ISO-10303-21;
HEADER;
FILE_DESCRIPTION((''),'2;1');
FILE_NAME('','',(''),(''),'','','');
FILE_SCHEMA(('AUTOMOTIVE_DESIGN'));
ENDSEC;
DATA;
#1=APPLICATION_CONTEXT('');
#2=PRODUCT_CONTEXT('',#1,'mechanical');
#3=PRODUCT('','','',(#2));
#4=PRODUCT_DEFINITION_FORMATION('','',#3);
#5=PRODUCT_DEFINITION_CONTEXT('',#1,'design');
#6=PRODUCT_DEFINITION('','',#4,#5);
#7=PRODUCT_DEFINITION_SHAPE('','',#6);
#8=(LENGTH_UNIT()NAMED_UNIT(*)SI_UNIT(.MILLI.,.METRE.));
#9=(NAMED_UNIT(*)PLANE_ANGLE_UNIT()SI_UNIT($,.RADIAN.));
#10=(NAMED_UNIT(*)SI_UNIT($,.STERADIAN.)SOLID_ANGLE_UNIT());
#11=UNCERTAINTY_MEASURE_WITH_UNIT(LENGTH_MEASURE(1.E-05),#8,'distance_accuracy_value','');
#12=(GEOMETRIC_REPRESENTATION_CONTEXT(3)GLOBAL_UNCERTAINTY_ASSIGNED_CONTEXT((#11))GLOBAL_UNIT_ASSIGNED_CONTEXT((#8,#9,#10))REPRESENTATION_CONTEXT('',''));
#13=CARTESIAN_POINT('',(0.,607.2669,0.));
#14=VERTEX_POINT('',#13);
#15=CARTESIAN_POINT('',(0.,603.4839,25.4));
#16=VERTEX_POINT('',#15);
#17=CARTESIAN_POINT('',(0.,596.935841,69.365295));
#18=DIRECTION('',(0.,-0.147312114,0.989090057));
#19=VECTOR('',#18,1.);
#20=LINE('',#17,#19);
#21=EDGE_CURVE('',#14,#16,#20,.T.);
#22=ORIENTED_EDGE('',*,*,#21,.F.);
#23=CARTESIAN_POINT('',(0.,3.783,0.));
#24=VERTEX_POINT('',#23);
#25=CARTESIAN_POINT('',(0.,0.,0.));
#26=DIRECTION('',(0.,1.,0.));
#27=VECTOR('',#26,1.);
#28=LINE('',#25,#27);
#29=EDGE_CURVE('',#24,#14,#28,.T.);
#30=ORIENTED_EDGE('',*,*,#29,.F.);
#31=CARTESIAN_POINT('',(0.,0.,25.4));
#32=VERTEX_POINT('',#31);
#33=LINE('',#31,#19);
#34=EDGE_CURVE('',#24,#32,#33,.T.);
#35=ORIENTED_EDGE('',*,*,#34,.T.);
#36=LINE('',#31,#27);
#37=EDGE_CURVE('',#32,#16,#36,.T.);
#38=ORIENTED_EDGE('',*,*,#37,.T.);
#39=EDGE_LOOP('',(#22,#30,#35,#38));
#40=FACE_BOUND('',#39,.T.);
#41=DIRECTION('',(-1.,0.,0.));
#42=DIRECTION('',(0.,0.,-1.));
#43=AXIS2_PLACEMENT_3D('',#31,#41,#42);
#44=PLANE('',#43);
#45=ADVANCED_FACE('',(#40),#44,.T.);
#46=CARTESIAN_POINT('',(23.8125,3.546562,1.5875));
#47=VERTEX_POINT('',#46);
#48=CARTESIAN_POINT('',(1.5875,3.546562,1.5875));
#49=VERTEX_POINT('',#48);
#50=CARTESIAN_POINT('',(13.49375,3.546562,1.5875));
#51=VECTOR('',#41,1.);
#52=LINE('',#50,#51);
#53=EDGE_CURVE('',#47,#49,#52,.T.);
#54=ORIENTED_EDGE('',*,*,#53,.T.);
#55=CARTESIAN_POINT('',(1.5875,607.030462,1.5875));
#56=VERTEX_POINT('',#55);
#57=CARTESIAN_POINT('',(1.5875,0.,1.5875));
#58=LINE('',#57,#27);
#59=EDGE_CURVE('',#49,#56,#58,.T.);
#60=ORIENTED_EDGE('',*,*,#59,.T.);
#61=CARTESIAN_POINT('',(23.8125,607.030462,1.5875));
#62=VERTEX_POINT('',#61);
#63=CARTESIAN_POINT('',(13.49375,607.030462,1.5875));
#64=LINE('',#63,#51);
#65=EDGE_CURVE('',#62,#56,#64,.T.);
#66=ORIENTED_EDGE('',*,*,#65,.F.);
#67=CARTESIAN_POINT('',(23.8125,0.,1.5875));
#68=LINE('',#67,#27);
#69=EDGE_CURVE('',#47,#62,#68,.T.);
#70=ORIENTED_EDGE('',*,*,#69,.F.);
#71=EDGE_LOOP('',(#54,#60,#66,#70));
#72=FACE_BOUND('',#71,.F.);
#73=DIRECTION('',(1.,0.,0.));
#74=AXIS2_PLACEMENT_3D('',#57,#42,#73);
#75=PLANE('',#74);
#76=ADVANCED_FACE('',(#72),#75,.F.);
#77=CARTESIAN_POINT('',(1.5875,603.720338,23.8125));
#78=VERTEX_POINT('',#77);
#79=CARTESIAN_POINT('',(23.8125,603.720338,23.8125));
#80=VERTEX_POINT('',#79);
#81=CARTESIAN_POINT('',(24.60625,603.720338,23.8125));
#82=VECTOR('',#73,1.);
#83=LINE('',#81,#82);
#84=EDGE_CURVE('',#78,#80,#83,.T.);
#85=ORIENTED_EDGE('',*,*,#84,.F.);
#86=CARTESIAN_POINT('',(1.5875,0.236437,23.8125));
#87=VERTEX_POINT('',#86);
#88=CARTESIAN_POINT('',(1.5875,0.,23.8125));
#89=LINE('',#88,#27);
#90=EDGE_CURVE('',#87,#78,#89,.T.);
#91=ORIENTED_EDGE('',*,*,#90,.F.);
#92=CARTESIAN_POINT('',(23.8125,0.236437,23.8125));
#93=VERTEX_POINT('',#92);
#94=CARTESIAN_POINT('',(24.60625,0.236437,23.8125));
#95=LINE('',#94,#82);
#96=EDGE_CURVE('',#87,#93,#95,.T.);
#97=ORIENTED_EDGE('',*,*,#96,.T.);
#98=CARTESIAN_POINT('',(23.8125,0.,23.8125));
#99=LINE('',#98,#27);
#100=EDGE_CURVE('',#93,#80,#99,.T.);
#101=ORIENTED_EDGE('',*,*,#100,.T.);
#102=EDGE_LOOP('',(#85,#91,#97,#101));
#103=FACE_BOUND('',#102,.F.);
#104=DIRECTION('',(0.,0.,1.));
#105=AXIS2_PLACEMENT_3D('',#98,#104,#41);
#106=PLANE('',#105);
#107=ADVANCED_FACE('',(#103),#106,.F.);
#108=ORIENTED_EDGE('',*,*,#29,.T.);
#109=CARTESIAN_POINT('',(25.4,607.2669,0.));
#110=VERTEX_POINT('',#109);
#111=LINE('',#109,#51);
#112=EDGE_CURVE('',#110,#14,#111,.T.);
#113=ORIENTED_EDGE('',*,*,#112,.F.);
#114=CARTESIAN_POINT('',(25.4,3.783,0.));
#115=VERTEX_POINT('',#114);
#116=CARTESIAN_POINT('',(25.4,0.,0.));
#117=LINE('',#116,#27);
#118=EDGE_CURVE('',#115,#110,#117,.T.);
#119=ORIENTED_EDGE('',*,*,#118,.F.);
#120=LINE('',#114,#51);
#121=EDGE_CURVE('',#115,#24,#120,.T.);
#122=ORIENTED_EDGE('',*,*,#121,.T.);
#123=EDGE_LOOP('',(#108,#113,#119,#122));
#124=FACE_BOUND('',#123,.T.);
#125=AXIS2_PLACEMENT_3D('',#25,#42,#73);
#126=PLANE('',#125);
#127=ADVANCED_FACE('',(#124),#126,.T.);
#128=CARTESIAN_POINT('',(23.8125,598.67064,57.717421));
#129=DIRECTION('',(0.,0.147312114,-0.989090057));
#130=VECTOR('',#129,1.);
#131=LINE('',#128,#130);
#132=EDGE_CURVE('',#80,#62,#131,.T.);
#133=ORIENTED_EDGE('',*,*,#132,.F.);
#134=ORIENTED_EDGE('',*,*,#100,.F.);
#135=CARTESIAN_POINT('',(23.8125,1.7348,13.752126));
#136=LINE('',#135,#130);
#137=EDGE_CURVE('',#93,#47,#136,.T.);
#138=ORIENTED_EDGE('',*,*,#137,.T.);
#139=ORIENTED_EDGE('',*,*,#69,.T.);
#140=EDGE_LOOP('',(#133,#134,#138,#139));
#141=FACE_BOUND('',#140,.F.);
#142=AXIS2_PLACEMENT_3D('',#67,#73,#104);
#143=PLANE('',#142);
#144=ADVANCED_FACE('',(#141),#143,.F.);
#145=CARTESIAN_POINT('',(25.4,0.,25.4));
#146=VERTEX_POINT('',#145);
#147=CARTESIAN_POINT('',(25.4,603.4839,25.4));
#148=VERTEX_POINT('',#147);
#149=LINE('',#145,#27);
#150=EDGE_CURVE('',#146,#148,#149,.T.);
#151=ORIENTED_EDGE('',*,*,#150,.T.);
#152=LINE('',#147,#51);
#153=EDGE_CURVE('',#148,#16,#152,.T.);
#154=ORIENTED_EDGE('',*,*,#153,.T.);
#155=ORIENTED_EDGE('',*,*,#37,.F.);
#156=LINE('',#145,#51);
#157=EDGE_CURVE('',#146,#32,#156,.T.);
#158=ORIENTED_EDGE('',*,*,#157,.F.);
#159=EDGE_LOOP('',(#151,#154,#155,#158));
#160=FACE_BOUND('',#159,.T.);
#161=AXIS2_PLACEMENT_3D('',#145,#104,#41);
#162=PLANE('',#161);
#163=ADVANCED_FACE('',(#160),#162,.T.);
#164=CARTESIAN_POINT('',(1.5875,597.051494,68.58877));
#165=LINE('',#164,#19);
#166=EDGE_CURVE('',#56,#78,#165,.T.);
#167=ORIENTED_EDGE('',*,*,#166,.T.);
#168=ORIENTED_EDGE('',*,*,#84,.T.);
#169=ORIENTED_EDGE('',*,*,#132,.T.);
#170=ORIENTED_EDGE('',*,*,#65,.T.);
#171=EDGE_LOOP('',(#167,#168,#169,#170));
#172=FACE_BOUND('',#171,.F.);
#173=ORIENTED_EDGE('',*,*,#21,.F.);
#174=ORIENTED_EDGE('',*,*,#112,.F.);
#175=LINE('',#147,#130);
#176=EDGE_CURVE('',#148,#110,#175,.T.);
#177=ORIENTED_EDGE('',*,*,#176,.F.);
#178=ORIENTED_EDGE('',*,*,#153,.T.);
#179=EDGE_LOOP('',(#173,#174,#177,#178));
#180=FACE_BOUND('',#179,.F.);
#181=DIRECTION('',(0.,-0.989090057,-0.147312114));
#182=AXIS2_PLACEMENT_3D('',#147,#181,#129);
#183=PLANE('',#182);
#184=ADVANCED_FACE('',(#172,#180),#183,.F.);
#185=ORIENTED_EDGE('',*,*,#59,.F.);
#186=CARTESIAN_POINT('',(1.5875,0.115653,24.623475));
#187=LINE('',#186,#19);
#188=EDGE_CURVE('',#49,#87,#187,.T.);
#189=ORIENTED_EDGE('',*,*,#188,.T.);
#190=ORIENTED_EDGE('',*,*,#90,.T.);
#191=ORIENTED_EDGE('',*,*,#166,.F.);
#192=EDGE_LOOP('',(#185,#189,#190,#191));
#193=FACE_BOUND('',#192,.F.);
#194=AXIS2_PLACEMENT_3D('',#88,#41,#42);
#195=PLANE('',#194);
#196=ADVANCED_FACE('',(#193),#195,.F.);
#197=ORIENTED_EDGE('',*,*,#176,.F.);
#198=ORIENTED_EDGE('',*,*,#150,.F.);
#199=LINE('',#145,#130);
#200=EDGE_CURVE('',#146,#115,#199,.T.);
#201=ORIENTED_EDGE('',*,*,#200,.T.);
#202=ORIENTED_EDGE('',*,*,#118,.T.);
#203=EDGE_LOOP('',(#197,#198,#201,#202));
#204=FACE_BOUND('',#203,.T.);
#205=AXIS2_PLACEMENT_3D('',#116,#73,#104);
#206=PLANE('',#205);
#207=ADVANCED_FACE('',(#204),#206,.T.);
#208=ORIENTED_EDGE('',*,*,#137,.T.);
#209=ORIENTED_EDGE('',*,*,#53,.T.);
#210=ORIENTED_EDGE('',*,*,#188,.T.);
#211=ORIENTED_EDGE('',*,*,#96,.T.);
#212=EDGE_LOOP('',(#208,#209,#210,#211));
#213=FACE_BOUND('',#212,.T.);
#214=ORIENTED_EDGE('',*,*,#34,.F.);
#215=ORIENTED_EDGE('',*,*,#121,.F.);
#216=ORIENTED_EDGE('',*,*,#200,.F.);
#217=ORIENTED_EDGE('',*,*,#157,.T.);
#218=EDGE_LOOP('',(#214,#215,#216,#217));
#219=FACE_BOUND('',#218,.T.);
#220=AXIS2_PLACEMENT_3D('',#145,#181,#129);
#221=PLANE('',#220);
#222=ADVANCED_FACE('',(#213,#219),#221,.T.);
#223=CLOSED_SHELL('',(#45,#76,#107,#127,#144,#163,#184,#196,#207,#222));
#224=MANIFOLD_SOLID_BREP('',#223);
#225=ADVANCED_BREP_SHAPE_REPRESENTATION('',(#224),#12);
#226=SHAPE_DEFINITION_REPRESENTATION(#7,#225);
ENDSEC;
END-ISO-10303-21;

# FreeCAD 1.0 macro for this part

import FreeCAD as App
import Part
import Sketcher
Q = App.Units.Quantity


def add_polygon(sketch, points):
    """Adds a closed chain of lines whose ends are joined by coincident constraints."""
    first, n = sketch.GeometryCount, len(points)
    for a, b in zip(points, points[1:] + points[:1]):
        sketch.addGeometry(Part.LineSegment(App.Vector(*a, 0), App.Vector(*b, 0)), False)
    for i in range(n):
        sketch.addConstraint(Sketcher.Constraint("Coincident", first + i, 2, first + (i + 1) % n, 1))

doc = App.newDocument("Part")
body = doc.addObject("PartDesign::Body", "Body")

# Sketch on XZ plane
sketch1 = body.newObject("Sketcher::SketchObject", "Sketch")
sketch1.AttachmentSupport = (doc.getObject("XZ_Plane"), [""])
sketch1.MapMode = "FlatFace"
add_polygon(sketch1, [(25, 0), (0, 0), (0, 25), (25, 25)])  # lines 0-3
add_polygon(sketch1, [(2, 24), (2, 2), (24, 2), (24, 24)])  # lines 4-7
sketch1.addConstraint([
    Sketcher.Constraint("Horizontal", 0),
    Sketcher.Constraint("Vertical", 1),
    Sketcher.Constraint("Horizontal", 2),
    Sketcher.Constraint("Vertical", 3),
    Sketcher.Constraint("Vertical", 4),
    Sketcher.Constraint("Horizontal", 5),
    Sketcher.Constraint("Vertical", 6),
    Sketcher.Constraint("Horizontal", 7),
    Sketcher.Constraint("Coincident", 0, 2, -1, 1),
    Sketcher.Constraint("Equal", 2, 1),
    Sketcher.Constraint("Equal", 7, 4),
    Sketcher.Constraint("DistanceX", 0, 2, 0, 1, Q("1 in")),
    Sketcher.Constraint("DistanceX", -1, 1, 4, 2, Q("0.0625 in")),
    Sketcher.Constraint("DistanceY", -1, 1, 4, 2, Q("0.0625 in")),
    Sketcher.Constraint("DistanceX", 5, 2, 3, 2, Q("0.0625 in")),
])
pad1 = body.newObject("PartDesign::Pad", "Pad")
pad1.Profile = sketch1
pad1.Length = Q("30 in")
pad1.Reversed = True

# Sketch on YZ plane
sketch2 = body.newObject("Sketcher::SketchObject", "Sketch001")
sketch2.AttachmentSupport = (doc.getObject("YZ_Plane"), [""])
sketch2.MapMode = "FlatFace"
sketch2.AttachmentOffset = App.Placement(App.Vector(0, 0, 1 * 25.4), App.Rotation())
add_polygon(sketch2, [(0, 25.4), (0, 0), (3.8, 0)])  # lines 0-2
add_polygon(sketch2, [(762, 25.4), (603.5, 25.4), (607.3, 0), (762, 0)])  # lines 3-6
sketch2.addConstraint([
    Sketcher.Constraint("Vertical", 0),
    Sketcher.Constraint("Horizontal", 1),
    Sketcher.Constraint("Horizontal", 3),
    Sketcher.Constraint("Horizontal", 5),
    Sketcher.Constraint("Vertical", 6),
    Sketcher.Constraint("Coincident", 0, 2, -1, 1),
    Sketcher.Constraint("PointOnObject", 4, 2, -1),
    Sketcher.Constraint("Parallel", 2, 4),
    Sketcher.Constraint("Horizontal", 2, 2, 3, 2),
    Sketcher.Constraint("DistanceY", 0, 2, 0, 1, Q("1 in")),
    Sketcher.Constraint("DistanceX", -1, 1, 5, 2, Q("30 in")),
    Sketcher.Constraint("DistanceX", -1, 1, 3, 2, Q("23.7592 in")),
    Sketcher.Constraint("Angle", 2, Q("98.4712 deg")),
])
pocket1 = body.newObject("PartDesign::Pocket", "Pocket")
pocket1.Profile = sketch2
pocket1.Length = Q("30 in")

doc.recompute()
